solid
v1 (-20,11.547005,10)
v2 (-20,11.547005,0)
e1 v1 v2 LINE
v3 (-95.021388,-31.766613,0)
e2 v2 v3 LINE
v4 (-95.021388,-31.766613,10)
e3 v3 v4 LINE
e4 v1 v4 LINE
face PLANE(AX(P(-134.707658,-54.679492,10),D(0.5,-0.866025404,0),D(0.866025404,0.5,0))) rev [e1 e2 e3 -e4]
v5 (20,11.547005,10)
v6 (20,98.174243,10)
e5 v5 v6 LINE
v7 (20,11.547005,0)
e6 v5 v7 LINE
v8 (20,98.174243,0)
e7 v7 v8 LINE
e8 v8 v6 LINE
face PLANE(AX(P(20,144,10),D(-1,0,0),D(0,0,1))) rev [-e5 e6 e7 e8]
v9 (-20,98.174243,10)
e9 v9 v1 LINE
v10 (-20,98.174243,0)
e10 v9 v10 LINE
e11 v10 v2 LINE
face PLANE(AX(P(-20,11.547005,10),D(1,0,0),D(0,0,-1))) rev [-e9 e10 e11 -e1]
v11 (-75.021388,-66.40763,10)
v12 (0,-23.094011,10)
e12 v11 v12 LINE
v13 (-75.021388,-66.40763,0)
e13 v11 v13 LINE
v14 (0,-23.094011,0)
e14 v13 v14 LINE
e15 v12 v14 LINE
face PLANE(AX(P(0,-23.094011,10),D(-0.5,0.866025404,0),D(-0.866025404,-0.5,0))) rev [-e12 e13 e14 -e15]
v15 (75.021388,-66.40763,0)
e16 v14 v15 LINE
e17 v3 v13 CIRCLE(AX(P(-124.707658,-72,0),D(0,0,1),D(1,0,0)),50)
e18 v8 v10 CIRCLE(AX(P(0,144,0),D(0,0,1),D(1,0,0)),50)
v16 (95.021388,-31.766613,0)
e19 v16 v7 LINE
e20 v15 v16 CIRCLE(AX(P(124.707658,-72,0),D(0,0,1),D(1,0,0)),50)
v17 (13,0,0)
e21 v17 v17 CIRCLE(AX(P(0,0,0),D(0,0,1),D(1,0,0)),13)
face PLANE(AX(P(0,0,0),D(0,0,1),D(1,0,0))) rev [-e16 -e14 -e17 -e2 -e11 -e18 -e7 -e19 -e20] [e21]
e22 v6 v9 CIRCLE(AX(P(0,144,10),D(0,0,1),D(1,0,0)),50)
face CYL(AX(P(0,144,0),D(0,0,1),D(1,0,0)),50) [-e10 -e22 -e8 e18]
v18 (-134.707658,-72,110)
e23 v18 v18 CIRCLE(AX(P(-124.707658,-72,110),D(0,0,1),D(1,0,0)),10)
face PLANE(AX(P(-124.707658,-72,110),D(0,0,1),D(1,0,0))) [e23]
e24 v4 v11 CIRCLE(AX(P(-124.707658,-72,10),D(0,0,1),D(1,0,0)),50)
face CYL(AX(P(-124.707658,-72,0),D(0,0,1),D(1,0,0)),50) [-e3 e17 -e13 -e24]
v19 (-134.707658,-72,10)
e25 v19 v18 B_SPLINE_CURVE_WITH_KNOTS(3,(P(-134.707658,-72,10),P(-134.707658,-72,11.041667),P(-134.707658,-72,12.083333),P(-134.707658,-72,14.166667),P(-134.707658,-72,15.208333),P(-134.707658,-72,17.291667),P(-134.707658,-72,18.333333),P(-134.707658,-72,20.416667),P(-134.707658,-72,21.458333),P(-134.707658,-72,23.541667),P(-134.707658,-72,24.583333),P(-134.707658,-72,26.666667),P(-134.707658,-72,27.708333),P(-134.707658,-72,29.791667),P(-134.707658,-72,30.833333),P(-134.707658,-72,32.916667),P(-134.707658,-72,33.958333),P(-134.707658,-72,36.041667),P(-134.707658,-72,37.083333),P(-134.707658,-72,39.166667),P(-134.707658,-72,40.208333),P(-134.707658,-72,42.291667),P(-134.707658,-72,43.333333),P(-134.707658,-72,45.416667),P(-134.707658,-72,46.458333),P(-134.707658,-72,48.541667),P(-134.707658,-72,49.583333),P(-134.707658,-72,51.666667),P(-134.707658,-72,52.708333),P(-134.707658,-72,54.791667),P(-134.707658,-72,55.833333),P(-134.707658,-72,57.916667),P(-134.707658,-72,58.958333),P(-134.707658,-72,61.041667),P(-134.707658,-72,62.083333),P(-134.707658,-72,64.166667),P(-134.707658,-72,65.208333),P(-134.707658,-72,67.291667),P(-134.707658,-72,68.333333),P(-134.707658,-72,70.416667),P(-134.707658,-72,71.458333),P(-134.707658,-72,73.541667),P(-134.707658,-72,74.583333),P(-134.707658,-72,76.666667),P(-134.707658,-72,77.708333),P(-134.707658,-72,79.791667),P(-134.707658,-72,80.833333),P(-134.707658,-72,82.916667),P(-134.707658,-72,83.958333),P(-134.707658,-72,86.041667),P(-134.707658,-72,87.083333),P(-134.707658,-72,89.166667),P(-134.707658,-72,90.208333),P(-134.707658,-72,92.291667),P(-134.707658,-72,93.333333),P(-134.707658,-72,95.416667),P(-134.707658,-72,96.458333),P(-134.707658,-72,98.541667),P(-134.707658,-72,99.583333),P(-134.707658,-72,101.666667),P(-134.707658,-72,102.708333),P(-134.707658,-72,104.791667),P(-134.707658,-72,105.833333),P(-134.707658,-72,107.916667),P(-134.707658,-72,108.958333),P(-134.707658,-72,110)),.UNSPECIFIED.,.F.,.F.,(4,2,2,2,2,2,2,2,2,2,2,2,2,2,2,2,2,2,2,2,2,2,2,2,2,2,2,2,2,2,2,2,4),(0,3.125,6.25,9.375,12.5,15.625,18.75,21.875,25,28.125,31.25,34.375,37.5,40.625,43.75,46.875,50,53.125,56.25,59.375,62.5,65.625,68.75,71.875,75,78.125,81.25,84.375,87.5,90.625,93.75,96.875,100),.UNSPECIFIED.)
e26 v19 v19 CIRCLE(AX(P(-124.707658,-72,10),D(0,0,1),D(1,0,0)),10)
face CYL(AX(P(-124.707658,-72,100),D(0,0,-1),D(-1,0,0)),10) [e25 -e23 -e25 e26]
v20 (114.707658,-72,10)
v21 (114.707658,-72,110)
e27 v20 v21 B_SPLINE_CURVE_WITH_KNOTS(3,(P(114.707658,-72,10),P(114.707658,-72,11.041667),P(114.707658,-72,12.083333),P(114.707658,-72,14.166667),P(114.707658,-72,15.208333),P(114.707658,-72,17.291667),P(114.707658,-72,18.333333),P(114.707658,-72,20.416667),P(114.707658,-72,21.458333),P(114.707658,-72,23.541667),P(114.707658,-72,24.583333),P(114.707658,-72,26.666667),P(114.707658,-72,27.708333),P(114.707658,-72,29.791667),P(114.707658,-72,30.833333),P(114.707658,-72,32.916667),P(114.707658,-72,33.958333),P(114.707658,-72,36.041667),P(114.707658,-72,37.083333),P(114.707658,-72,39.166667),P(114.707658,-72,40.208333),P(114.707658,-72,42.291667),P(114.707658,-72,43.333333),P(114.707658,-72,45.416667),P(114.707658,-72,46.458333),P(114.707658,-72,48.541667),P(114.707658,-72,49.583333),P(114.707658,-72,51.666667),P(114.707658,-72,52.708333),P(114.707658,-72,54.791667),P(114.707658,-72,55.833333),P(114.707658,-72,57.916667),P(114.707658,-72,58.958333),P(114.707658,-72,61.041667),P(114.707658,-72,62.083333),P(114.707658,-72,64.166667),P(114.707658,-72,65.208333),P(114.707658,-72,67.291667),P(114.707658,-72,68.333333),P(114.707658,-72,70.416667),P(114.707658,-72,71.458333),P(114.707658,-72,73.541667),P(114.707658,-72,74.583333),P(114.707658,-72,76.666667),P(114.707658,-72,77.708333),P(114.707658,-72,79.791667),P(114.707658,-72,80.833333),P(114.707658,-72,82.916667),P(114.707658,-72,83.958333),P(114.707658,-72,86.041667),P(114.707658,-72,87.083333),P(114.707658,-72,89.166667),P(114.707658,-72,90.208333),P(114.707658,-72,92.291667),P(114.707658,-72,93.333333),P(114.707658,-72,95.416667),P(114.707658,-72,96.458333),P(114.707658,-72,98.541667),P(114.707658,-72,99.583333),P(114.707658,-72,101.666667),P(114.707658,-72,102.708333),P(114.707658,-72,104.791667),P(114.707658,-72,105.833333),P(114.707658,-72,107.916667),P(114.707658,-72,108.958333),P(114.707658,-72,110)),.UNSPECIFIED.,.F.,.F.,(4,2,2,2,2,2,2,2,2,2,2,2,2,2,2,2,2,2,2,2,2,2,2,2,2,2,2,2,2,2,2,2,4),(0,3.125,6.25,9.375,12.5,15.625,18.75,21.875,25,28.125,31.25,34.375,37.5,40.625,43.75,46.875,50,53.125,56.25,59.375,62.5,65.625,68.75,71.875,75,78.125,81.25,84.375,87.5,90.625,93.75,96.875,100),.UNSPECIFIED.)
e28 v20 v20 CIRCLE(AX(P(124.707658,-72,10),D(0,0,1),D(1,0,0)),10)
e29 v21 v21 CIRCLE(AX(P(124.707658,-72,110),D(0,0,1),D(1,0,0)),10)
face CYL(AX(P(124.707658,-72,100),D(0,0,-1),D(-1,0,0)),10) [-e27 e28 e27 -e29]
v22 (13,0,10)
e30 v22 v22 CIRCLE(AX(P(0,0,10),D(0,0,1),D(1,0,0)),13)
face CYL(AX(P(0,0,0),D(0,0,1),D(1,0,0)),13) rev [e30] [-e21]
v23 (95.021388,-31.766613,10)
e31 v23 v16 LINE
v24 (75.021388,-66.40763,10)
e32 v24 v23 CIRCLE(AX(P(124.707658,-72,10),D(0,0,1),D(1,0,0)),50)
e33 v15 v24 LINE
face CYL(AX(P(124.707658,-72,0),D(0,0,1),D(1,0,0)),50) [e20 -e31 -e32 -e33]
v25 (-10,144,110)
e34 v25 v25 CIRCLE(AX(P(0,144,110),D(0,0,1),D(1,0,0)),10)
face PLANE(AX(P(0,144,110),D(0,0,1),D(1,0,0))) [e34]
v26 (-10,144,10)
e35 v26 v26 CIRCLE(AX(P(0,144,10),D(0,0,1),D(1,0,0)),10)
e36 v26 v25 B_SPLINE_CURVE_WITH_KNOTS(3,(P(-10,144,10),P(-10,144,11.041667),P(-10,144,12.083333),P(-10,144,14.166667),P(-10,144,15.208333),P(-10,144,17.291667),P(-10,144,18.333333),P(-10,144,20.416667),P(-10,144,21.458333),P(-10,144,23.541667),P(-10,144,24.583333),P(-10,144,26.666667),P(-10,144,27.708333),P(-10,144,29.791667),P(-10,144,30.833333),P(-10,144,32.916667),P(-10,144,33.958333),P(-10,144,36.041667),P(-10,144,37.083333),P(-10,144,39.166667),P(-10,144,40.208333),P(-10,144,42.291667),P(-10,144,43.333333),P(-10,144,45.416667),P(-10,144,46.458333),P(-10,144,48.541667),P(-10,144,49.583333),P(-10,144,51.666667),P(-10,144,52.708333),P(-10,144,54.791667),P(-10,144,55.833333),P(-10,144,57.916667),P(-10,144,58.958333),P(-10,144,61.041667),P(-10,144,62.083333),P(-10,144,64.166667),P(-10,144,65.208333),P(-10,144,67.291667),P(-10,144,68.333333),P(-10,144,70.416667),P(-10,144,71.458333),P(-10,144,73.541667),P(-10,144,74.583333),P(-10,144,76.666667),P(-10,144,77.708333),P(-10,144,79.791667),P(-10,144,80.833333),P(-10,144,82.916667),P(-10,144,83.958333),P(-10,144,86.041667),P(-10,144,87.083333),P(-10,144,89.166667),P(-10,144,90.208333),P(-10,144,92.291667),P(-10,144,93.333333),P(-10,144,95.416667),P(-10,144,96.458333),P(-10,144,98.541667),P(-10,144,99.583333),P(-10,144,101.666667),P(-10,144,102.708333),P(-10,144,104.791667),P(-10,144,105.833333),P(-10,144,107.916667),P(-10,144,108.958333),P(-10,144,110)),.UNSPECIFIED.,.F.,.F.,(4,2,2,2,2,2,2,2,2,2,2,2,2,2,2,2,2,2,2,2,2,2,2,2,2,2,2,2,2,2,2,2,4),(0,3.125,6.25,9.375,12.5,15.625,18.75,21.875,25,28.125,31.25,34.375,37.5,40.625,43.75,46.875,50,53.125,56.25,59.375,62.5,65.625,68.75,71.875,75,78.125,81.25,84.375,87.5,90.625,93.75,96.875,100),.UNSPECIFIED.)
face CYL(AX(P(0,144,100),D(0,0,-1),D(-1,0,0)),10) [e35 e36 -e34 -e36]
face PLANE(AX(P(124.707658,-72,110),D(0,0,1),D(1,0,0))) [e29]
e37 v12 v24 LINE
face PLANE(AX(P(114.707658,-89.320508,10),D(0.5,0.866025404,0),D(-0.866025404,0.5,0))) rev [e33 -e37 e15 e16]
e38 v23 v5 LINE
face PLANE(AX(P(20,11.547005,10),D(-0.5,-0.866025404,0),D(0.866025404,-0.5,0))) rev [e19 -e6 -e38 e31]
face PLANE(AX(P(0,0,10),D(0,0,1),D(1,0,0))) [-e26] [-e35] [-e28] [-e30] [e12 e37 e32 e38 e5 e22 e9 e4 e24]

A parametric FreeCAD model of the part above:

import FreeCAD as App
import Part
import Sketcher
Q = App.Units.Quantity

doc = App.newDocument("Part")
body = doc.addObject("PartDesign::Body", "Body")

# Sketch on XY plane
sketch1 = doc.addObject("Sketcher::SketchObject", "Sketch")
body.addObject(sketch1)
sketch1.AttachmentSupport = (doc.XY_Plane, [""])
sketch1.MapMode = "FlatFace"
sketch1.addGeometry(Part.LineSegment(App.Vector(20, 144, 0), App.Vector(-20, 144, 0)), False)
sketch1.addGeometry(Part.LineSegment(App.Vector(-20, 144, 0), App.Vector(-20, 12, 0)), False)
sketch1.addGeometry(Part.LineSegment(App.Vector(-20, 12, 0), App.Vector(-135, -55, 0)), False)
sketch1.addGeometry(Part.LineSegment(App.Vector(-135, -55, 0), App.Vector(-115, -89, 0)), False)
sketch1.addGeometry(Part.LineSegment(App.Vector(-115, -89, 0), App.Vector(0, -23, 0)), False)
sketch1.addGeometry(Part.LineSegment(App.Vector(0, -23, 0), App.Vector(115, -89, 0)), False)
sketch1.addGeometry(Part.LineSegment(App.Vector(115, -89, 0), App.Vector(135, -55, 0)), False)
sketch1.addGeometry(Part.LineSegment(App.Vector(135, -55, 0), App.Vector(20, 12, 0)), False)
sketch1.addGeometry(Part.LineSegment(App.Vector(20, 12, 0), App.Vector(20, 144, 0)), False)
sketch1.addConstraint(Sketcher.Constraint("Coincident", 0, 2, 1, 1))
sketch1.addConstraint(Sketcher.Constraint("Coincident", 1, 2, 2, 1))
sketch1.addConstraint(Sketcher.Constraint("Coincident", 2, 2, 3, 1))
sketch1.addConstraint(Sketcher.Constraint("Coincident", 3, 2, 4, 1))
sketch1.addConstraint(Sketcher.Constraint("Coincident", 4, 2, 5, 1))
sketch1.addConstraint(Sketcher.Constraint("Coincident", 5, 2, 6, 1))
sketch1.addConstraint(Sketcher.Constraint("Coincident", 6, 2, 7, 1))
sketch1.addConstraint(Sketcher.Constraint("Coincident", 7, 2, 8, 1))
sketch1.addConstraint(Sketcher.Constraint("Coincident", 8, 2, 0, 1))
sketch1.addConstraint(Sketcher.Constraint("Horizontal", 0))
sketch1.addConstraint(Sketcher.Constraint("Vertical", 1))
sketch1.addConstraint(Sketcher.Constraint("Vertical", 8))
sketch1.addConstraint(Sketcher.Constraint("Symmetric", 3, 2, 5, 2, -2))
sketch1.addConstraint(Sketcher.Constraint("Symmetric", 2, 2, 6, 2, -2))
sketch1.addConstraint(Sketcher.Constraint("Symmetric", 1, 2, 7, 2, -2))
sketch1.addConstraint(Sketcher.Constraint("PointOnObject", 4, 2, -2))
sketch1.addConstraint(Sketcher.Constraint("Perpendicular", 2, 3))
sketch1.addConstraint(Sketcher.Constraint("Perpendicular", 3, 4))
sketch1.addConstraint(Sketcher.Constraint("Equal", 2, 4))
sketch1.addConstraint(Sketcher.Constraint("DistanceX", 0, 2, 0, 1, 40.0))
sketch1.addConstraint(Sketcher.Constraint("Angle", 2, Q("-150 deg")))
sketch1.addConstraint(Sketcher.Constraint("DistanceY", -1, 1, 0, 2, 144.0))
sketch1.addConstraint(Sketcher.Constraint("DistanceY", 1, 2, 1, 1, 132.452995))
sketch1.addConstraint(Sketcher.Constraint("DistanceX", 2, 2, -1, 1, 134.707658))
pad1 = doc.addObject("PartDesign::Pad", "Pad")
body.addObject(pad1)
pad1.Profile = sketch1
pad1.Length = 10

# Sketch on XY plane
sketch2 = doc.addObject("Sketcher::SketchObject", "Sketch001")
body.addObject(sketch2)
sketch2.AttachmentSupport = (doc.XY_Plane, [""])
sketch2.MapMode = "FlatFace"
sketch2.AttachmentOffset = App.Placement(App.Vector(0, 0, 10), App.Rotation())
sketch2.addGeometry(Part.Circle(App.Vector(-125, -72, 0), App.Vector(0, 0, 1), 50), False)
sketch2.addGeometry(Part.Circle(App.Vector(0, 144, 0), App.Vector(0, 0, 1), 50), False)
sketch2.addGeometry(Part.Circle(App.Vector(125, -72, 0), App.Vector(0, 0, 1), 50), False)
sketch2.addConstraint(Sketcher.Constraint("Equal", 0, 1))
sketch2.addConstraint(Sketcher.Constraint("Equal", 1, 2))
sketch2.addConstraint(Sketcher.Constraint("Symmetric", 0, 3, 2, 3, -2))
sketch2.addConstraint(Sketcher.Constraint("PointOnObject", 1, 3, -2))
sketch2.addConstraint(Sketcher.Constraint("Diameter", 0, 100.0))
sketch2.addConstraint(Sketcher.Constraint("DistanceY", 0, 3, -1, 1, 72.0))
sketch2.addConstraint(Sketcher.Constraint("DistanceY", -1, 1, 1, 3, 144.0))
sketch2.addConstraint(Sketcher.Constraint("DistanceX", 0, 3, -1, 1, 124.707658))
pad2 = doc.addObject("PartDesign::Pad", "Pad001")
body.addObject(pad2)
pad2.Profile = sketch2
pad2.Length = 10
pad2.Reversed = True

# Sketch on XY plane
sketch3 = doc.addObject("Sketcher::SketchObject", "Sketch002")
body.addObject(sketch3)
sketch3.AttachmentSupport = (doc.XY_Plane, [""])
sketch3.MapMode = "FlatFace"
sketch3.AttachmentOffset = App.Placement(App.Vector(0, 0, 10), App.Rotation())
sketch3.addGeometry(Part.Circle(App.Vector(0, 144, 0), App.Vector(0, 0, 1), 10), False)
sketch3.addGeometry(Part.Circle(App.Vector(125, -72, 0), App.Vector(0, 0, 1), 10), False)
sketch3.addGeometry(Part.Circle(App.Vector(-125, -72, 0), App.Vector(0, 0, 1), 10), False)
sketch3.addConstraint(Sketcher.Constraint("Equal", 0, 1))
sketch3.addConstraint(Sketcher.Constraint("Equal", 1, 2))
sketch3.addConstraint(Sketcher.Constraint("Symmetric", 1, 3, 2, 3, -2))
sketch3.addConstraint(Sketcher.Constraint("PointOnObject", 0, 3, -2))
sketch3.addConstraint(Sketcher.Constraint("Diameter", 0, 20.0))
sketch3.addConstraint(Sketcher.Constraint("DistanceY", -1, 1, 0, 3, 144.0))
sketch3.addConstraint(Sketcher.Constraint("DistanceY", 1, 3, -1, 1, 72.0))
sketch3.addConstraint(Sketcher.Constraint("DistanceX", -1, 1, 1, 3, 124.707658))
pad3 = doc.addObject("PartDesign::Pad", "Pad002")
body.addObject(pad3)
pad3.Profile = sketch3
pad3.Length = 90

# Sketch on XY plane
sketch4 = doc.addObject("Sketcher::SketchObject", "Sketch003")
body.addObject(sketch4)
sketch4.AttachmentSupport = (doc.XY_Plane, [""])
sketch4.MapMode = "FlatFace"
sketch4.AttachmentOffset = App.Placement(App.Vector(0, 0, 70), App.Rotation())
sketch4.addGeometry(Part.Circle(App.Vector(0, 144, 0), App.Vector(0, 0, 1), 10), False)
sketch4.addConstraint(Sketcher.Constraint("PointOnObject", 0, 3, -2))
sketch4.addConstraint(Sketcher.Constraint("Diameter", 0, 20.0))
sketch4.addConstraint(Sketcher.Constraint("DistanceY", -1, 1, 0, 3, 144.0))
pocket1 = doc.addObject("PartDesign::Pocket", "Pocket")
body.addObject(pocket1)
pocket1.Profile = sketch4
pocket1.Length = 30
pocket1.Reversed = True

# Sketch on XY plane
sketch5 = doc.addObject("Sketcher::SketchObject", "Sketch004")
body.addObject(sketch5)
sketch5.AttachmentSupport = (doc.XY_Plane, [""])
sketch5.MapMode = "FlatFace"
sketch5.AttachmentOffset = App.Placement(App.Vector(0, 0, 10), App.Rotation())
sketch5.addGeometry(Part.Circle(App.Vector(0, 0, 0), App.Vector(0, 0, 1), 13), False)
sketch5.addConstraint(Sketcher.Constraint("Coincident", 0, 3, -1, 1))
sketch5.addConstraint(Sketcher.Constraint("Diameter", 0, 26.0))
pocket2 = doc.addObject("PartDesign::Pocket", "Pocket001")
body.addObject(pocket2)
pocket2.Profile = sketch5
pocket2.Length = 10

# Sketch on XY plane
sketch6 = doc.addObject("Sketcher::SketchObject", "Sketch005")
body.addObject(sketch6)
sketch6.AttachmentSupport = (doc.XY_Plane, [""])
sketch6.MapMode = "FlatFace"
sketch6.AttachmentOffset = App.Placement(App.Vector(0, 0, 70), App.Rotation())
sketch6.addGeometry(Part.Circle(App.Vector(0, 144, 0), App.Vector(0, 0, 1), 10), False)
sketch6.addConstraint(Sketcher.Constraint("PointOnObject", 0, 3, -2))
sketch6.addConstraint(Sketcher.Constraint("Diameter", 0, 20.0))
sketch6.addConstraint(Sketcher.Constraint("DistanceY", -1, 1, 0, 3, 144.0))
pad4 = doc.addObject("PartDesign::Pad", "Pad003")
body.addObject(pad4)
pad4.Profile = sketch6
pad4.Length = 30

# Sketch on XY plane
sketch7 = doc.addObject("Sketcher::SketchObject", "Sketch006")
body.addObject(sketch7)
sketch7.AttachmentSupport = (doc.XY_Plane, [""])
sketch7.MapMode = "FlatFace"
sketch7.AttachmentOffset = App.Placement(App.Vector(0, 0, 100), App.Rotation())
sketch7.addGeometry(Part.Circle(App.Vector(0, 144, 0), App.Vector(0, 0, 1), 10), False)
sketch7.addConstraint(Sketcher.Constraint("PointOnObject", 0, 3, -2))
sketch7.addConstraint(Sketcher.Constraint("Diameter", 0, 20.0))
sketch7.addConstraint(Sketcher.Constraint("DistanceY", -1, 1, 0, 3, 144.0))
pad5 = doc.addObject("PartDesign::Pad", "Pad004")
body.addObject(pad5)
pad5.Profile = sketch7
pad5.Length = 10

# Sketch on XY plane
sketch8 = doc.addObject("Sketcher::SketchObject", "Sketch007")
body.addObject(sketch8)
sketch8.AttachmentSupport = (doc.XY_Plane, [""])
sketch8.MapMode = "FlatFace"
sketch8.AttachmentOffset = App.Placement(App.Vector(0, 0, 100), App.Rotation())
sketch8.addGeometry(Part.Circle(App.Vector(-125, -72, 0), App.Vector(0, 0, 1), 10), False)
sketch8.addConstraint(Sketcher.Constraint("Diameter", 0, 20.0))
sketch8.addConstraint(Sketcher.Constraint("DistanceY", 0, 3, -1, 1, 72.0))
sketch8.addConstraint(Sketcher.Constraint("DistanceX", 0, 3, -1, 1, 124.707658))
pad6 = doc.addObject("PartDesign::Pad", "Pad005")
body.addObject(pad6)
pad6.Profile = sketch8
pad6.Length = 10

# Sketch on XY plane
sketch9 = doc.addObject("Sketcher::SketchObject", "Sketch008")
body.addObject(sketch9)
sketch9.AttachmentSupport = (doc.XY_Plane, [""])
sketch9.MapMode = "FlatFace"
sketch9.AttachmentOffset = App.Placement(App.Vector(0, 0, 100), App.Rotation())
sketch9.addGeometry(Part.Circle(App.Vector(125, -72, 0), App.Vector(0, 0, 1), 10), False)
sketch9.addConstraint(Sketcher.Constraint("Diameter", 0, 20.0))
sketch9.addConstraint(Sketcher.Constraint("DistanceY", 0, 3, -1, 1, 72.0))
sketch9.addConstraint(Sketcher.Constraint("DistanceX", -1, 1, 0, 3, 124.707658))
pad7 = doc.addObject("PartDesign::Pad", "Pad006")
body.addObject(pad7)
pad7.Profile = sketch9
pad7.Length = 10

doc.recompute()
